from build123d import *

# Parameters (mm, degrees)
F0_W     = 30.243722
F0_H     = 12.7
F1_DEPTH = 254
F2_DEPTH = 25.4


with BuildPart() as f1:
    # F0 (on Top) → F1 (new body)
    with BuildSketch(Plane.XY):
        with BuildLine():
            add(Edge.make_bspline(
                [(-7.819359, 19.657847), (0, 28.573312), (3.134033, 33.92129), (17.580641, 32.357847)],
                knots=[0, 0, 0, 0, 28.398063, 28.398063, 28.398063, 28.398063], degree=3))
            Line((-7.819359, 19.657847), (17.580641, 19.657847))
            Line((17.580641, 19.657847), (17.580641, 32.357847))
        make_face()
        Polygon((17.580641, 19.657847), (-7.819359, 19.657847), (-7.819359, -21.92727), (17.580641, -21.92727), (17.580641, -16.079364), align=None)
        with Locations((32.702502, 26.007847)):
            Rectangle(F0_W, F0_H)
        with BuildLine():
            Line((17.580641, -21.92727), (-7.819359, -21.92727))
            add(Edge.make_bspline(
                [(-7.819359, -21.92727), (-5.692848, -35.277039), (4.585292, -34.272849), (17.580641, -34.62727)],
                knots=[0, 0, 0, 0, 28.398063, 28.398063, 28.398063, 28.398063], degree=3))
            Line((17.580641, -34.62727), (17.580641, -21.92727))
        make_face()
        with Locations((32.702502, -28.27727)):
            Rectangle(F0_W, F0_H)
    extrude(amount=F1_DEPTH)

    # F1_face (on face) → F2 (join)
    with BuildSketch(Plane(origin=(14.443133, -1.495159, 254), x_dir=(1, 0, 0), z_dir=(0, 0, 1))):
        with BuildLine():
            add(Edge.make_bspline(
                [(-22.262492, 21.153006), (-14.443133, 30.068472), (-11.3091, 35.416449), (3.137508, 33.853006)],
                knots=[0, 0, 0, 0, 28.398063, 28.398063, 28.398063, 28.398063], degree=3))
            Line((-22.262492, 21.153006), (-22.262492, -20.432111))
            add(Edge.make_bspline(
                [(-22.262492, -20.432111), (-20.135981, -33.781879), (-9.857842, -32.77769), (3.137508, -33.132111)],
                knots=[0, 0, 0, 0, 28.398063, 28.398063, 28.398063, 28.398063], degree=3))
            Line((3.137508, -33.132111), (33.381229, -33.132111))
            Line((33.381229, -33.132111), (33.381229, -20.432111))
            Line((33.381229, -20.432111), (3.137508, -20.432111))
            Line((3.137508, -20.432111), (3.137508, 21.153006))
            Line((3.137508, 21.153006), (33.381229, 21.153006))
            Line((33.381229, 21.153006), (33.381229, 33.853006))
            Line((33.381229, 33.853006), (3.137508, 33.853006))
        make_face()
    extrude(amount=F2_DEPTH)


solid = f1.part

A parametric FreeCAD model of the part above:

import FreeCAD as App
import Part
import Sketcher
from FreeCAD import Vector

doc = App.newDocument("Part")
params = doc.addObject("Spreadsheet::Sheet", "Params")
for row, (alias, value) in enumerate([
    ("pad1_length", "10 in"),
    ("pad2_length", "1 in"),
], start=1):
    params.set(f"A{row}", alias)
    params.set(f"B{row}", "=" + value)
    params.setAlias(f"B{row}", alias)

body = doc.addObject("PartDesign::Body", "Body")

sketch1 = doc.addObject("Sketcher::SketchObject", "Sketch")
body.addObject(sketch1)
sketch1.AttachmentSupport = (doc.XY_Plane, [""])
sketch1.MapMode = "FlatFace"
sketch1.addGeometry(Part.BSplineCurve([Vector(-7.819359, 19.657847, 0), Vector(0, 28.573312, 0), Vector(3.134033, 33.92129, 0), Vector(17.580641, 32.357847, 0)], [4, 4], [0, 28.398063], False, 3, [1, 1, 1, 1], False), False)
sketch1.addGeometry(Part.LineSegment(Vector(-7.819359, 19.657847, 0), Vector(-7.819359, -21.92727, 0)), False)
sketch1.addGeometry(Part.BSplineCurve([Vector(-7.819359, -21.92727, 0), Vector(-5.692848, -35.277039, 0), Vector(4.585292, -34.272849, 0), Vector(17.580641, -34.62727, 0)], [4, 4], [0, 28.398063], False, 3, [1, 1, 1, 1], False), False)
sketch1.addGeometry(Part.LineSegment(Vector(17.580641, -34.62727, 0), Vector(47.824363, -34.62727, 0)), False)
sketch1.addGeometry(Part.LineSegment(Vector(47.824363, -34.62727, 0), Vector(47.824363, -21.92727, 0)), False)
sketch1.addGeometry(Part.LineSegment(Vector(47.824363, -21.92727, 0), Vector(17.580641, -21.92727, 0)), False)
sketch1.addGeometry(Part.LineSegment(Vector(17.580641, -21.92727, 0), Vector(17.580641, 19.657847, 0)), False)
sketch1.addGeometry(Part.LineSegment(Vector(17.580641, 19.657847, 0), Vector(47.824363, 19.657847, 0)), False)
sketch1.addGeometry(Part.LineSegment(Vector(47.824363, 19.657847, 0), Vector(47.824363, 32.357847, 0)), False)
sketch1.addGeometry(Part.LineSegment(Vector(47.824363, 32.357847, 0), Vector(17.580641, 32.357847, 0)), False)
sketch1.addConstraint(Sketcher.Constraint("Block", 0))
sketch1.addConstraint(Sketcher.Constraint("Block", 2))
sketch1.addConstraint(Sketcher.Constraint("Coincident", 0, 1, 1, 1))
sketch1.addConstraint(Sketcher.Constraint("Coincident", 1, 2, 2, 1))
sketch1.addConstraint(Sketcher.Constraint("Coincident", 2, 2, 3, 1))
sketch1.addConstraint(Sketcher.Constraint("Coincident", 3, 2, 4, 1))
sketch1.addConstraint(Sketcher.Constraint("Coincident", 4, 2, 5, 1))
sketch1.addConstraint(Sketcher.Constraint("Coincident", 5, 2, 6, 1))
sketch1.addConstraint(Sketcher.Constraint("Coincident", 6, 2, 7, 1))
sketch1.addConstraint(Sketcher.Constraint("Coincident", 7, 2, 8, 1))
sketch1.addConstraint(Sketcher.Constraint("Coincident", 8, 2, 9, 1))
sketch1.addConstraint(Sketcher.Constraint("Coincident", 9, 2, 0, 2))
sketch1.addConstraint(Sketcher.Constraint("Horizontal", 3))
sketch1.addConstraint(Sketcher.Constraint("Vertical", 4))
sketch1.addConstraint(Sketcher.Constraint("Horizontal", 5))
sketch1.addConstraint(Sketcher.Constraint("Vertical", 6))
sketch1.addConstraint(Sketcher.Constraint("Horizontal", 7))
sketch1.addConstraint(Sketcher.Constraint("Vertical", 8))
sketch1.addConstraint(Sketcher.Constraint("Horizontal", 9))
sketch1.addConstraint(Sketcher.Constraint("Horizontal", 1, 2, 4, 2))
sketch1.addConstraint(Sketcher.Constraint("Vertical", 4, 2, 7, 2))
sketch1.addConstraint(Sketcher.Constraint("Vertical", 6, 2, 9, 2))
sketch1.addConstraint(Sketcher.Constraint("Equal", 1, 6))
sketch1.addConstraint(Sketcher.Constraint("DistanceX", 3, 1, 3, 2, 30.243722))
pad1 = doc.addObject("PartDesign::Pad", "Pad")
body.addObject(pad1)
pad1.Profile = sketch1
pad1.setExpression("Length", "Params.pad1_length")

sketch2 = doc.addObject("Sketcher::SketchObject", "Sketch001")
body.addObject(sketch2)
sketch2.AttachmentSupport = (doc.XY_Plane, [""])
sketch2.MapMode = "FlatFace"
sketch2.AttachmentOffset = App.Placement(Vector(0, 0, 10 * 25.4), App.Rotation())
sketch2.addGeometry(Part.BSplineCurve([Vector(-7.819359, 19.657847, 0), Vector(0, 28.573313, 0), Vector(3.134033, 33.92129, 0), Vector(17.580641, 32.357847, 0)], [4, 4], [0, 28.398063], False, 3, [1, 1, 1, 1], False), False)
sketch2.addGeometry(Part.LineSegment(Vector(-7.819359, 19.657847, 0), Vector(-7.819359, -21.92727, 0)), False)
sketch2.addGeometry(Part.BSplineCurve([Vector(-7.819359, -21.92727, 0), Vector(-5.692848, -35.277038, 0), Vector(4.585291, -34.272849, 0), Vector(17.580641, -34.62727, 0)], [4, 4], [0, 28.398063], False, 3, [1, 1, 1, 1], False), False)
sketch2.addGeometry(Part.LineSegment(Vector(17.580641, -34.62727, 0), Vector(47.824362, -34.62727, 0)), False)
sketch2.addGeometry(Part.LineSegment(Vector(47.824362, -34.62727, 0), Vector(47.824362, -21.92727, 0)), False)
sketch2.addGeometry(Part.LineSegment(Vector(47.824362, -21.92727, 0), Vector(17.580641, -21.92727, 0)), False)
sketch2.addGeometry(Part.LineSegment(Vector(17.580641, -21.92727, 0), Vector(17.580641, 19.657847, 0)), False)
sketch2.addGeometry(Part.LineSegment(Vector(17.580641, 19.657847, 0), Vector(47.824362, 19.657847, 0)), False)
sketch2.addGeometry(Part.LineSegment(Vector(47.824362, 19.657847, 0), Vector(47.824362, 32.357847, 0)), False)
sketch2.addGeometry(Part.LineSegment(Vector(47.824362, 32.357847, 0), Vector(17.580641, 32.357847, 0)), False)
sketch2.addConstraint(Sketcher.Constraint("Block", 0))
sketch2.addConstraint(Sketcher.Constraint("Block", 2))
sketch2.addConstraint(Sketcher.Constraint("Coincident", 0, 1, 1, 1))
sketch2.addConstraint(Sketcher.Constraint("Coincident", 1, 2, 2, 1))
sketch2.addConstraint(Sketcher.Constraint("Coincident", 2, 2, 3, 1))
sketch2.addConstraint(Sketcher.Constraint("Coincident", 3, 2, 4, 1))
sketch2.addConstraint(Sketcher.Constraint("Coincident", 4, 2, 5, 1))
sketch2.addConstraint(Sketcher.Constraint("Coincident", 5, 2, 6, 1))
sketch2.addConstraint(Sketcher.Constraint("Coincident", 6, 2, 7, 1))
sketch2.addConstraint(Sketcher.Constraint("Coincident", 7, 2, 8, 1))
sketch2.addConstraint(Sketcher.Constraint("Coincident", 8, 2, 9, 1))
sketch2.addConstraint(Sketcher.Constraint("Coincident", 9, 2, 0, 2))
sketch2.addConstraint(Sketcher.Constraint("Horizontal", 3))
sketch2.addConstraint(Sketcher.Constraint("Vertical", 4))
sketch2.addConstraint(Sketcher.Constraint("Horizontal", 5))
sketch2.addConstraint(Sketcher.Constraint("Vertical", 6))
sketch2.addConstraint(Sketcher.Constraint("Horizontal", 7))
sketch2.addConstraint(Sketcher.Constraint("Vertical", 8))
sketch2.addConstraint(Sketcher.Constraint("Horizontal", 9))
sketch2.addConstraint(Sketcher.Constraint("Horizontal", 1, 2, 4, 2))
sketch2.addConstraint(Sketcher.Constraint("Vertical", 4, 2, 7, 2))
sketch2.addConstraint(Sketcher.Constraint("Vertical", 6, 2, 9, 2))
sketch2.addConstraint(Sketcher.Constraint("Equal", 1, 6))
sketch2.addConstraint(Sketcher.Constraint("DistanceX", 3, 1, 3, 2, 30.243721))
pad2 = doc.addObject("PartDesign::Pad", "Pad001")
body.addObject(pad2)
pad2.Profile = sketch2
pad2.setExpression("Length", "Params.pad2_length")

doc.recompute()
